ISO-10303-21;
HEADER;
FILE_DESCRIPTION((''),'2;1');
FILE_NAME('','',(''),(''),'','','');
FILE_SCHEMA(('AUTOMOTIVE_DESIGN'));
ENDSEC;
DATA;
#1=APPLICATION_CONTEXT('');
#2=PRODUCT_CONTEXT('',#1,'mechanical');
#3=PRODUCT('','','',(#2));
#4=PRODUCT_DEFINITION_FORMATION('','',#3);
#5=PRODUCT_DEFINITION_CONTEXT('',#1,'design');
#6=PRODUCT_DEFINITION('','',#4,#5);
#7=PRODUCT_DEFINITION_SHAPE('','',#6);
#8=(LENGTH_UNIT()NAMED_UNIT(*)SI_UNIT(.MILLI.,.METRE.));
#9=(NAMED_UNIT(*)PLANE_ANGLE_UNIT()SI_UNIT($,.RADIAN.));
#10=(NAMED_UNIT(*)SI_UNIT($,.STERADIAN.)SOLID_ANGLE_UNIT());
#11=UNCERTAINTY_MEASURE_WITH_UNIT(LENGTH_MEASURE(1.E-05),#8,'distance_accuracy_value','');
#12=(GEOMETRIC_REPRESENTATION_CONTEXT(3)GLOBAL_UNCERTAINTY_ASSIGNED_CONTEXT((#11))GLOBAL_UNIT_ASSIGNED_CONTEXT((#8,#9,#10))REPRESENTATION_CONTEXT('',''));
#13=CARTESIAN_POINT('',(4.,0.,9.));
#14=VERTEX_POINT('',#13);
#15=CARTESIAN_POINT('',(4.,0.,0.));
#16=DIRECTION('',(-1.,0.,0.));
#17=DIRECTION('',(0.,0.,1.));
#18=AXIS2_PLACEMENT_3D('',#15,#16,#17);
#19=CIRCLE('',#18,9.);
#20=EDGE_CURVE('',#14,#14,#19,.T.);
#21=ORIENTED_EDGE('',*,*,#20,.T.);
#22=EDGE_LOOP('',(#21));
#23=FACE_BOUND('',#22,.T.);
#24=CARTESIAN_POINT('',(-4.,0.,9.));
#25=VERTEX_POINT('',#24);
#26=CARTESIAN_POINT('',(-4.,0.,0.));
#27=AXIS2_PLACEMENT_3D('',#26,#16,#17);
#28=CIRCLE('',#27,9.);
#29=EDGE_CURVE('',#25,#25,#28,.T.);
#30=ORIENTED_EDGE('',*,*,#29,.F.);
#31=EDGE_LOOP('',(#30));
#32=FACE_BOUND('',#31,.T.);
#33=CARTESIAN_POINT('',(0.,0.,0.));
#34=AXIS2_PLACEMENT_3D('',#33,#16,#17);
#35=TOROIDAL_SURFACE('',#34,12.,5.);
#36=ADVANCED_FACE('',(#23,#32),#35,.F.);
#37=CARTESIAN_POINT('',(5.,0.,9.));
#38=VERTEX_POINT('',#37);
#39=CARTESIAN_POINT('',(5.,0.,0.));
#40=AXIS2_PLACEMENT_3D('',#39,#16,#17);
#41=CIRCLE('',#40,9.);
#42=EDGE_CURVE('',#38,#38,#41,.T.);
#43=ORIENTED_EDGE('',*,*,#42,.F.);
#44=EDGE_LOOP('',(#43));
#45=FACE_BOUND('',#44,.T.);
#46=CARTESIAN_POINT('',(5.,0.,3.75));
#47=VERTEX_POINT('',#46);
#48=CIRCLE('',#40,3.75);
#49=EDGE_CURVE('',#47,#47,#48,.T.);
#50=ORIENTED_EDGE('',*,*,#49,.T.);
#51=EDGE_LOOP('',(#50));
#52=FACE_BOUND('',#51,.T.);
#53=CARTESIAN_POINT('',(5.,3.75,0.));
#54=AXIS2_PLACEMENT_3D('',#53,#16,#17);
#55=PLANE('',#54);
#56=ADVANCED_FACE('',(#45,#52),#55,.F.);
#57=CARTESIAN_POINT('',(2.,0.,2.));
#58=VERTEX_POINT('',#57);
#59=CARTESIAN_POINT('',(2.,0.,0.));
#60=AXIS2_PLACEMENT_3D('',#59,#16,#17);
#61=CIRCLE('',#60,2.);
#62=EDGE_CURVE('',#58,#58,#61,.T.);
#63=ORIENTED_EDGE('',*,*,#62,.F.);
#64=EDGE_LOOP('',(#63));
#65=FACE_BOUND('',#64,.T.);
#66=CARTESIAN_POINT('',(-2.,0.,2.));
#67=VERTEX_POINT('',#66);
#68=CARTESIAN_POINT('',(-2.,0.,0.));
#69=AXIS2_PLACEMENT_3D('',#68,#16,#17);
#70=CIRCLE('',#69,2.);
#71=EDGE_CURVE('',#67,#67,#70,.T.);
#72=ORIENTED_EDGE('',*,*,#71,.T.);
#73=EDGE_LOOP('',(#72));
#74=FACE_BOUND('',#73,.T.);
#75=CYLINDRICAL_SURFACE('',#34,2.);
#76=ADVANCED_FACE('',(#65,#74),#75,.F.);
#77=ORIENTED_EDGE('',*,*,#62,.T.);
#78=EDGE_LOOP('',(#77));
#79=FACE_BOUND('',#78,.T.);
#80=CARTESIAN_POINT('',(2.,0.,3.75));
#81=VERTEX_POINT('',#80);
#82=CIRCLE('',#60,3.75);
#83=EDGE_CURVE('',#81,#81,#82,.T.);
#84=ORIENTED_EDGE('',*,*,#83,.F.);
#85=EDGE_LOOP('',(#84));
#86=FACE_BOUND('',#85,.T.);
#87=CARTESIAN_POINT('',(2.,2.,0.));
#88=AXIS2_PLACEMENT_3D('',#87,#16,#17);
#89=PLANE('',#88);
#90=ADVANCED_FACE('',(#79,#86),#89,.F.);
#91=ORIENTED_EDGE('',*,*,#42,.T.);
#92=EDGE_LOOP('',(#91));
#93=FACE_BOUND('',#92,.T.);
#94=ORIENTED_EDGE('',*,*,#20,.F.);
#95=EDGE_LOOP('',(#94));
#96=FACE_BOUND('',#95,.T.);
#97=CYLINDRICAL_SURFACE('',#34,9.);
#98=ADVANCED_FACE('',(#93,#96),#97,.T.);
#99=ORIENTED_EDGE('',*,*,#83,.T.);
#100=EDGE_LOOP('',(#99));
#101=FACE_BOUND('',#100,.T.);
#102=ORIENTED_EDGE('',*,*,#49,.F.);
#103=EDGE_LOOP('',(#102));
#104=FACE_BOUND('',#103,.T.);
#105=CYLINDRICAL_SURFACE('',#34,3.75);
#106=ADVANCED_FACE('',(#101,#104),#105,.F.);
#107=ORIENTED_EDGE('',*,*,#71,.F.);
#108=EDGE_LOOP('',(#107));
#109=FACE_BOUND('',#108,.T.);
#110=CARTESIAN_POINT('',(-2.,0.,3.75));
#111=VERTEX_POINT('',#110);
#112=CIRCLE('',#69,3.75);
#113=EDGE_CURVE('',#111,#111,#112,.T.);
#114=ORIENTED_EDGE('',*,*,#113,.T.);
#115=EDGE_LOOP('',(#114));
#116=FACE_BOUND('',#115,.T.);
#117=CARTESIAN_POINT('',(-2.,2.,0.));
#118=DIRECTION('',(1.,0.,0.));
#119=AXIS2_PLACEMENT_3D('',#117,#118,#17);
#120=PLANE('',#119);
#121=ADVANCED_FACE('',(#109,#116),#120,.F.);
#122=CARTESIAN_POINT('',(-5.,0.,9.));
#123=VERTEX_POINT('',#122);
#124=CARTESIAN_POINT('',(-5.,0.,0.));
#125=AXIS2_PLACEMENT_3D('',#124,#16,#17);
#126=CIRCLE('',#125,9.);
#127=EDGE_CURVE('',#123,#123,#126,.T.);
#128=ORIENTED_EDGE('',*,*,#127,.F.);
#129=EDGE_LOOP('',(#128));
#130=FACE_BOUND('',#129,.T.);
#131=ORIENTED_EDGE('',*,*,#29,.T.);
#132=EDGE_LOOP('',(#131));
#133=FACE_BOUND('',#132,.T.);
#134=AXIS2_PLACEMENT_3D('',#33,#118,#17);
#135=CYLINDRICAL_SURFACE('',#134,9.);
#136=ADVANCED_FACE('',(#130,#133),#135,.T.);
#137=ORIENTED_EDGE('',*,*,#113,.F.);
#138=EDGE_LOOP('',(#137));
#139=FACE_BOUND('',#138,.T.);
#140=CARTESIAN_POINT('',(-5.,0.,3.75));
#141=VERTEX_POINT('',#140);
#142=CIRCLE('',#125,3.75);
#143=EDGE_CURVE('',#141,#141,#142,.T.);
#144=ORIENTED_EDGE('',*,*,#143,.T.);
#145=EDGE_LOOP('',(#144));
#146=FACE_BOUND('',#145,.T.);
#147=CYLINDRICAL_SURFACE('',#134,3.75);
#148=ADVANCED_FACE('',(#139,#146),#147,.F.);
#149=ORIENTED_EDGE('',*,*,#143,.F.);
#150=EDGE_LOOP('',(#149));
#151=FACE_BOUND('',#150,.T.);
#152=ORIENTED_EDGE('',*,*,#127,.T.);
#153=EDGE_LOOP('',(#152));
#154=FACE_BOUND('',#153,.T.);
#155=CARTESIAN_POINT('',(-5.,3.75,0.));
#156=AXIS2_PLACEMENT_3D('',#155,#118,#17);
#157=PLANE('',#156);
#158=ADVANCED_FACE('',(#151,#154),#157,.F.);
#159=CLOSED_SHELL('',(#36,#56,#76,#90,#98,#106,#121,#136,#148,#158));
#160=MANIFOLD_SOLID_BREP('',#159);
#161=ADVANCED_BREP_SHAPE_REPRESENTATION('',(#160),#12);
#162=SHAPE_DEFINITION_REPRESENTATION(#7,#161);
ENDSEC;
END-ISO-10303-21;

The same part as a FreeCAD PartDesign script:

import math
import FreeCAD as App
import Part
import Sketcher
from FreeCAD import Vector
Q = App.Units.Quantity

doc = App.newDocument("Part")
body = doc.addObject("PartDesign::Body", "Body")

sketch1 = body.newObject("Sketcher::SketchObject", "Sketch")
sketch1.AttachmentSupport = (doc.getObject("XY_Plane"), [""])
sketch1.MapMode = "FlatFace"
sketch1.addGeometry([
    Part.LineSegment(Vector(0, 2, 0), Vector(2, 2, 0)),
    Part.LineSegment(Vector(2, 2, 0), Vector(2, 3.8, 0)),
    Part.LineSegment(Vector(2, 3.8, 0), Vector(5, 3.8, 0)),
    Part.LineSegment(Vector(5, 3.8, 0), Vector(5, 9, 0)),
    Part.LineSegment(Vector(5, 9, 0), Vector(4, 9, 0)),
    Part.ArcOfCircle(Part.Circle(Vector(0, 12, 0), Vector(0, 0, 1), 5), math.radians(-90), math.radians(-37)),
    Part.LineSegment(Vector(0, 7, 0), Vector(0, 2, 0)),
], False)
sketch1.addConstraint([
    Sketcher.Constraint("Coincident", 0, 2, 1, 1),
    Sketcher.Constraint("Coincident", 1, 2, 2, 1),
    Sketcher.Constraint("Coincident", 2, 2, 3, 1),
    Sketcher.Constraint("Coincident", 3, 2, 4, 1),
    Sketcher.Constraint("Coincident", 4, 2, 5, 2),
    Sketcher.Constraint("Coincident", 5, 1, 6, 1),
    Sketcher.Constraint("Coincident", 6, 2, 0, 1),
    Sketcher.Constraint("Horizontal", 0),
    Sketcher.Constraint("Vertical", 1),
    Sketcher.Constraint("Horizontal", 2),
    Sketcher.Constraint("Vertical", 3),
    Sketcher.Constraint("Horizontal", 4),
    Sketcher.Constraint("Vertical", 6),
    Sketcher.Constraint("PointOnObject", 5, 3, -2),
    Sketcher.Constraint("PointOnObject", 5, 1, -2),
    Sketcher.Constraint("Radius", 5, Q("5 mm")),
    Sketcher.Constraint("DistanceX", 0, 1, 0, 2, Q("2 mm")),
    Sketcher.Constraint("DistanceX", 2, 1, 2, 2, Q("3 mm")),
    Sketcher.Constraint("DistanceX", 4, 2, 4, 1, Q("1 mm")),
    Sketcher.Constraint("DistanceY", 6, 2, 6, 1, Q("5 mm")),
    Sketcher.Constraint("DistanceY", -1, 1, 5, 3, Q("12 mm")),
    Sketcher.Constraint("DistanceY", 1, 1, 1, 2, Q("1.75 mm")),
])
revolution = body.newObject("PartDesign::Revolution", "Revolution")
revolution.Profile = sketch1
revolution.ReferenceAxis = (sketch1, ["H_Axis"])
revolution.Angle = 360
doc.recompute()

mirrored = body.newObject("PartDesign::Mirrored", "Mirrored")
mirrored.Originals = [revolution]
mirrored.MirrorPlane = (doc.getObject("YZ_Plane"), [""])
body.Tip = mirrored

doc.recompute()
